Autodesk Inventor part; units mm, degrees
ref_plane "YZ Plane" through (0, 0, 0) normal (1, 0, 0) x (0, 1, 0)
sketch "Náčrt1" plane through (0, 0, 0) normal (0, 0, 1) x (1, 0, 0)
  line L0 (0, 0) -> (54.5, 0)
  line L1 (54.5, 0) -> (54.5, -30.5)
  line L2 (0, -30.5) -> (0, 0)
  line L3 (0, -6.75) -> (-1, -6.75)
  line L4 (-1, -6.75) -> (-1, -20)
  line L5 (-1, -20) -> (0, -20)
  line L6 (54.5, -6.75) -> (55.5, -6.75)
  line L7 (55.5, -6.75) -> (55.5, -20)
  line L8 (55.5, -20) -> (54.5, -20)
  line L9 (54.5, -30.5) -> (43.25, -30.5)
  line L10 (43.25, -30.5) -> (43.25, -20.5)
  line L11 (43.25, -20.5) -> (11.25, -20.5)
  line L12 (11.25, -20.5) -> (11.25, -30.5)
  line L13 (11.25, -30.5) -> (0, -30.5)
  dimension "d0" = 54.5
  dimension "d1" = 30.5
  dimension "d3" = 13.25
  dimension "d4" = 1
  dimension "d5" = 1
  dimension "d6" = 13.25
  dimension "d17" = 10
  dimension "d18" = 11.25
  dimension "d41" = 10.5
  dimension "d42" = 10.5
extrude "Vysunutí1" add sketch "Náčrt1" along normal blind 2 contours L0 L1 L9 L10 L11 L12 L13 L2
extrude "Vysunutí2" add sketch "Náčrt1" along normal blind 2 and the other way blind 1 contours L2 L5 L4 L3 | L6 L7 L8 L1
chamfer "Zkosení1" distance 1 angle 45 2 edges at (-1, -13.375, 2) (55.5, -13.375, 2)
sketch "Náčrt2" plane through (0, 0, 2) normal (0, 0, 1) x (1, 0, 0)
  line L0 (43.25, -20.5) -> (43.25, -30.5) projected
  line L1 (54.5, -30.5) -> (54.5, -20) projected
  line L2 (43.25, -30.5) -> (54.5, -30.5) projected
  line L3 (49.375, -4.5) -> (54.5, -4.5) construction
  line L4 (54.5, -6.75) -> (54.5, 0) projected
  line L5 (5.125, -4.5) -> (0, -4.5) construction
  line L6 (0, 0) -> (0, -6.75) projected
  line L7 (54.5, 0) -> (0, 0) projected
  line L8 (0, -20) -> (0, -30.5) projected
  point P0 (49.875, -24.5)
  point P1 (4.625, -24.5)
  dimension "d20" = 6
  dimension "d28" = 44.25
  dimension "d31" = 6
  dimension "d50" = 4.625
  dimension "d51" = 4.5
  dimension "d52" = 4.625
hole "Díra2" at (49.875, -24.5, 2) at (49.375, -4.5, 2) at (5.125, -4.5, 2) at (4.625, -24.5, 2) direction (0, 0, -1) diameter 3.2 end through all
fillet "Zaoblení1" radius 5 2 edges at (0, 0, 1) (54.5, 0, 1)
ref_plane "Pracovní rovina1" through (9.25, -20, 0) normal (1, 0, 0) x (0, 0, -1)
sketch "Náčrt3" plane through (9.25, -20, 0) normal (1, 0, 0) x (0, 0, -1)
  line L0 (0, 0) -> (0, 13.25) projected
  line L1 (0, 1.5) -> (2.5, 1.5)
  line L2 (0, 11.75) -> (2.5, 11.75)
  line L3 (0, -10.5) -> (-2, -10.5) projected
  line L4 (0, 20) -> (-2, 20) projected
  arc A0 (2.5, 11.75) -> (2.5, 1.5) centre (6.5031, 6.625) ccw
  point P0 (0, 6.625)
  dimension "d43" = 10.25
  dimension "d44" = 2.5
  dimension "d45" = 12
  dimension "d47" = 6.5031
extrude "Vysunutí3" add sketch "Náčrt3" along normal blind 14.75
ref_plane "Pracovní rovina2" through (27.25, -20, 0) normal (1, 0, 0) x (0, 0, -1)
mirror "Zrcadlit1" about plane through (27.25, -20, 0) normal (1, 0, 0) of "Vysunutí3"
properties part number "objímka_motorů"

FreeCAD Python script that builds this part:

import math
import FreeCAD as App
import Part
import Sketcher

V = App.Vector


def edges_at(feature, points):
    """Names of the edges that pass closest to the given points."""
    edges = feature.Shape.Edges
    near = lambda p: min(range(len(edges)), key=lambda i: edges[i].distToShape(Part.Vertex(*p))[0])
    return sorted({f"Edge{near(p) + 1}" for p in points})


def add_polygon(sketch, points):
    """Adds a closed chain of lines whose ends are joined by coincident constraints."""
    first, n = sketch.GeometryCount, len(points)
    for a, b in zip(points, points[1:] + points[:1]):
        sketch.addGeometry(Part.LineSegment(App.Vector(*a, 0), App.Vector(*b, 0)), False)
    for i in range(n):
        sketch.addConstraint(Sketcher.Constraint("Coincident", first + i, 2, first + (i + 1) % n, 1))

doc = App.newDocument("Part")
params = doc.addObject("Spreadsheet::Sheet", "Params")
for row, (alias, value) in enumerate([
    ("sketch1_height", "10 mm"),
    ("sketch1_width", "54.5 mm"),
    ("sketch1_height2", "30.5 mm"),
    ("sketch1_width2", "11.25 mm"),
    ("pad1_length", "2 mm"),
    ("sketch2_width", "1 mm"),
    ("sketch2_height", "13.25 mm"),
    ("pad2_length", "2 mm"),
    ("pad2_length2", "1 mm"),
    ("chamfer_size", "1 mm"),
    ("sketch3_diameter", "3.2 mm"),
    ("hole_diameter", "3.2 mm"),
    ("fillet_radius", "5 mm"),
    ("sketch4_height", "2.5 mm"),
    ("pad3_length", "14.75 mm"),
], start=1):
    params.set(f"A{row}", alias)
    params.set(f"B{row}", "=" + value)
    params.setAlias(f"B{row}", alias)

body = doc.addObject("PartDesign::Body", "Body")

# Sketch on XY plane
sketch1 = doc.addObject("Sketcher::SketchObject", "Sketch")
body.addObject(sketch1)
sketch1.AttachmentSupport = (doc.XY_Plane, [""])
sketch1.MapMode = "FlatFace"
add_polygon(sketch1, [(54, 0), (0, 0), (0, -30), (11, -30), (11, -20), (43, -20), (43, -30), (54, -30)])  # lines 0-7
sketch1.addConstraint(Sketcher.Constraint("Horizontal", 0))
sketch1.addConstraint(Sketcher.Constraint("Vertical", 1))
sketch1.addConstraint(Sketcher.Constraint("Horizontal", 2))
sketch1.addConstraint(Sketcher.Constraint("Vertical", 3))
sketch1.addConstraint(Sketcher.Constraint("Horizontal", 4))
sketch1.addConstraint(Sketcher.Constraint("Vertical", 5))
sketch1.addConstraint(Sketcher.Constraint("Horizontal", 6))
sketch1.addConstraint(Sketcher.Constraint("Vertical", 7))
sketch1.addConstraint(Sketcher.Constraint("Coincident", 0, 2, -1, 1))
sketch1.addConstraint(Sketcher.Constraint("Horizontal", 2, 2, 5, 2))
sketch1.addConstraint(Sketcher.Constraint("Equal", 2, 6))
sketch1.addConstraint(Sketcher.Constraint("DistanceY", 3, 1, 3, 2, 10.0))
sketch1.addConstraint(Sketcher.Constraint("DistanceX", 0, 2, 0, 1, 54.5))
sketch1.addConstraint(Sketcher.Constraint("DistanceY", 1, 2, 1, 1, 30.5))
sketch1.addConstraint(Sketcher.Constraint("DistanceX", 2, 1, 2, 2, 11.25))
sketch1.setExpression("Constraints[19]", "Params.sketch1_height")
sketch1.setExpression("Constraints[20]", "Params.sketch1_width")
sketch1.setExpression("Constraints[21]", "Params.sketch1_height2")
sketch1.setExpression("Constraints[22]", "Params.sketch1_width2")
pad1 = doc.addObject("PartDesign::Pad", "Pad")
body.addObject(pad1)
pad1.Profile = sketch1
pad1.setExpression("Length", "Params.pad1_length")

# Sketch on XY plane
sketch2 = doc.addObject("Sketcher::SketchObject", "Sketch001")
body.addObject(sketch2)
sketch2.AttachmentSupport = (doc.XY_Plane, [""])
sketch2.MapMode = "FlatFace"
add_polygon(sketch2, [(0, -20), (0, -6.8), (-1, -6.8), (-1, -20)])  # lines 0-3
add_polygon(sketch2, [(55.5, -6.8), (54.5, -6.8), (54.5, -20), (55.5, -20)])  # lines 4-7
sketch2.addConstraint(Sketcher.Constraint("Vertical", 0))
sketch2.addConstraint(Sketcher.Constraint("Horizontal", 1))
sketch2.addConstraint(Sketcher.Constraint("Vertical", 2))
sketch2.addConstraint(Sketcher.Constraint("Horizontal", 3))
sketch2.addConstraint(Sketcher.Constraint("Horizontal", 4))
sketch2.addConstraint(Sketcher.Constraint("Vertical", 5))
sketch2.addConstraint(Sketcher.Constraint("Horizontal", 6))
sketch2.addConstraint(Sketcher.Constraint("Vertical", 7))
sketch2.addConstraint(Sketcher.Constraint("PointOnObject", 0, 2, -2))
sketch2.addConstraint(Sketcher.Constraint("Horizontal", 1, 2, 4, 2))
sketch2.addConstraint(Sketcher.Constraint("Horizontal", 3, 2, 5, 2))
sketch2.addConstraint(Sketcher.Constraint("Equal", 3, 4))
sketch2.addConstraint(Sketcher.Constraint("DistanceX", 1, 2, 1, 1, 1.0))
sketch2.addConstraint(Sketcher.Constraint("DistanceY", 0, 1, 0, 2, 13.25))
sketch2.addConstraint(Sketcher.Constraint("DistanceX", -1, 1, 4, 2, 54.5))
sketch2.addConstraint(Sketcher.Constraint("DistanceY", 2, 2, -1, 1, 20.0))
sketch2.setExpression("Constraints[20]", "Params.sketch2_width")
sketch2.setExpression("Constraints[21]", "Params.sketch2_height")
pad2 = doc.addObject("PartDesign::Pad", "Pad001")
body.addObject(pad2)
pad2.Profile = sketch2
pad2.Type = "TwoLengths"
pad2.setExpression("Length", "Params.pad2_length")
pad2.setExpression("Length2", "Params.pad2_length2")
doc.recompute()

chamfer = doc.addObject("PartDesign::Chamfer", "Chamfer")
body.addObject(chamfer)
chamfer.Base = (pad2, edges_at(pad2, [(-1, -13.375, 2), (55.5, -13.375, 2)]))
chamfer.setExpression("Size", "Params.chamfer_size")

# Sketch on XY plane
sketch3 = doc.addObject("Sketcher::SketchObject", "Sketch002")
body.addObject(sketch3)
sketch3.AttachmentSupport = (doc.XY_Plane, [""])
sketch3.MapMode = "FlatFace"
sketch3.AttachmentOffset = App.Placement(V(0, 0, 2), App.Rotation())
sketch3.addGeometry(Part.Circle(V(49.9, -24.5, 0), V(0, 0, 1), 1.6), False)
sketch3.addGeometry(Part.Circle(V(49.4, -4.5, 0), V(0, 0, 1), 1.6), False)
sketch3.addGeometry(Part.Circle(V(5.1, -4.5, 0), V(0, 0, 1), 1.6), False)
sketch3.addGeometry(Part.Circle(V(4.6, -24.5, 0), V(0, 0, 1), 1.6), False)
sketch3.addConstraint(Sketcher.Constraint("Equal", 0, 1))
sketch3.addConstraint(Sketcher.Constraint("Equal", 1, 2))
sketch3.addConstraint(Sketcher.Constraint("Equal", 2, 3))
sketch3.addConstraint(Sketcher.Constraint("Horizontal", 1, 3, 2, 3))
sketch3.addConstraint(Sketcher.Constraint("Horizontal", 0, 3, 3, 3))
sketch3.addConstraint(Sketcher.Constraint("Diameter", 0, 3.2))
sketch3.addConstraint(Sketcher.Constraint("DistanceY", 0, 3, 1, 3, 20.0))
sketch3.addConstraint(Sketcher.Constraint("DistanceY", 0, 3, -1, 1, 24.5))
sketch3.addConstraint(Sketcher.Constraint("DistanceX", 1, 3, 0, 3, 0.5))
sketch3.addConstraint(Sketcher.Constraint("DistanceX", 3, 3, 2, 3, 0.5))
sketch3.addConstraint(Sketcher.Constraint("DistanceX", 2, 3, 1, 3, 44.25))
sketch3.addConstraint(Sketcher.Constraint("DistanceX", -1, 1, 0, 3, 49.875))
sketch3.setExpression("Constraints[5]", "Params.sketch3_diameter")
doc.recompute()
hole = doc.addObject("PartDesign::Hole", "Hole")
body.addObject(hole)
hole.Profile = sketch3
hole.ThreadType = "None"
hole.setExpression("Diameter", "Params.hole_diameter")
hole.DepthType = "ThroughAll"
doc.recompute()

fillet = doc.addObject("PartDesign::Fillet", "Fillet")
body.addObject(fillet)
fillet.Base = (hole, edges_at(hole, [(0, 0, 1), (54.5, 0, 1)]))
fillet.setExpression("Radius", "Params.fillet_radius")

# Sketch on YZ plane
sketch4 = doc.addObject("Sketcher::SketchObject", "Sketch003")
body.addObject(sketch4)
sketch4.AttachmentSupport = (doc.YZ_Plane, [""])
sketch4.MapMode = "FlatFace"
sketch4.AttachmentOffset = App.Placement(V(0, 0, 9.25), App.Rotation())
sketch4.addGeometry(Part.LineSegment(V(-8.2, 0, 0), V(-13.4, 0, 0)), False)
sketch4.addGeometry(Part.ArcOfCircle(Part.Circle(V(-13.4, -6.5, 0), V(0, 0, 1), 6.5), math.radians(38), math.radians(90)), False)
sketch4.addGeometry(Part.LineSegment(V(-8.2, -2.5, 0), V(-8.2, 0, 0)), False)
sketch4.addGeometry(Part.LineSegment(V(-13.4, 0, 0), V(-18.5, 0, 0)), False)
sketch4.addGeometry(Part.LineSegment(V(-18.5, 0, 0), V(-18.5, -2.5, 0)), False)
sketch4.addGeometry(Part.ArcOfCircle(Part.Circle(V(-13.4, -6.5, 0), V(0, 0, 1), 6.5), math.radians(90), math.radians(142)), False)
sketch4.addConstraint(Sketcher.Constraint("Tangent", 0, 2, 1, 2))
sketch4.addConstraint(Sketcher.Constraint("Coincident", 1, 1, 2, 1))
sketch4.addConstraint(Sketcher.Constraint("Coincident", 2, 2, 0, 1))
sketch4.addConstraint(Sketcher.Constraint("Coincident", 3, 2, 4, 1))
sketch4.addConstraint(Sketcher.Constraint("Coincident", 4, 2, 5, 2))
sketch4.addConstraint(Sketcher.Constraint("Tangent", 5, 1, 3, 1))
sketch4.addConstraint(Sketcher.Constraint("Horizontal", 0))
sketch4.addConstraint(Sketcher.Constraint("Vertical", 2))
sketch4.addConstraint(Sketcher.Constraint("Horizontal", 3))
sketch4.addConstraint(Sketcher.Constraint("Vertical", 4))
sketch4.addConstraint(Sketcher.Constraint("Coincident", 5, 3, 1, 3))
sketch4.addConstraint(Sketcher.Constraint("Equal", 1, 5))
sketch4.addConstraint(Sketcher.Constraint("PointOnObject", 0, 2, -1))
sketch4.addConstraint(Sketcher.Constraint("Horizontal", 1, 1, 4, 2))
sketch4.addConstraint(Sketcher.Constraint("DistanceY", 2, 1, 2, 2, 2.5))
sketch4.addConstraint(Sketcher.Constraint("Radius", 1, 6.503))
sketch4.addConstraint(Sketcher.Constraint("DistanceX", 3, 2, -1, 1, 18.5))
sketch4.setExpression("Constraints[14]", "Params.sketch4_height")
pad3 = doc.addObject("PartDesign::Pad", "Pad002")
body.addObject(pad3)
pad3.Profile = sketch4
pad3.setExpression("Length", "Params.pad3_length")
doc.recompute()

datumplane = doc.addObject("PartDesign::Plane", "DatumPlane")
body.addObject(datumplane)
datumplane.AttachmentSupport = (doc.YZ_Plane, [""])
datumplane.MapMode = "FlatFace"
datumplane.AttachmentOffset = App.Placement(V(0, 0, 27.25), App.Rotation())
mirrored = doc.addObject("PartDesign::Mirrored", "Mirrored")
body.addObject(mirrored)
mirrored.Originals = [pad3]
mirrored.MirrorPlane = (datumplane, [""])
body.Tip = mirrored

doc.recompute()
